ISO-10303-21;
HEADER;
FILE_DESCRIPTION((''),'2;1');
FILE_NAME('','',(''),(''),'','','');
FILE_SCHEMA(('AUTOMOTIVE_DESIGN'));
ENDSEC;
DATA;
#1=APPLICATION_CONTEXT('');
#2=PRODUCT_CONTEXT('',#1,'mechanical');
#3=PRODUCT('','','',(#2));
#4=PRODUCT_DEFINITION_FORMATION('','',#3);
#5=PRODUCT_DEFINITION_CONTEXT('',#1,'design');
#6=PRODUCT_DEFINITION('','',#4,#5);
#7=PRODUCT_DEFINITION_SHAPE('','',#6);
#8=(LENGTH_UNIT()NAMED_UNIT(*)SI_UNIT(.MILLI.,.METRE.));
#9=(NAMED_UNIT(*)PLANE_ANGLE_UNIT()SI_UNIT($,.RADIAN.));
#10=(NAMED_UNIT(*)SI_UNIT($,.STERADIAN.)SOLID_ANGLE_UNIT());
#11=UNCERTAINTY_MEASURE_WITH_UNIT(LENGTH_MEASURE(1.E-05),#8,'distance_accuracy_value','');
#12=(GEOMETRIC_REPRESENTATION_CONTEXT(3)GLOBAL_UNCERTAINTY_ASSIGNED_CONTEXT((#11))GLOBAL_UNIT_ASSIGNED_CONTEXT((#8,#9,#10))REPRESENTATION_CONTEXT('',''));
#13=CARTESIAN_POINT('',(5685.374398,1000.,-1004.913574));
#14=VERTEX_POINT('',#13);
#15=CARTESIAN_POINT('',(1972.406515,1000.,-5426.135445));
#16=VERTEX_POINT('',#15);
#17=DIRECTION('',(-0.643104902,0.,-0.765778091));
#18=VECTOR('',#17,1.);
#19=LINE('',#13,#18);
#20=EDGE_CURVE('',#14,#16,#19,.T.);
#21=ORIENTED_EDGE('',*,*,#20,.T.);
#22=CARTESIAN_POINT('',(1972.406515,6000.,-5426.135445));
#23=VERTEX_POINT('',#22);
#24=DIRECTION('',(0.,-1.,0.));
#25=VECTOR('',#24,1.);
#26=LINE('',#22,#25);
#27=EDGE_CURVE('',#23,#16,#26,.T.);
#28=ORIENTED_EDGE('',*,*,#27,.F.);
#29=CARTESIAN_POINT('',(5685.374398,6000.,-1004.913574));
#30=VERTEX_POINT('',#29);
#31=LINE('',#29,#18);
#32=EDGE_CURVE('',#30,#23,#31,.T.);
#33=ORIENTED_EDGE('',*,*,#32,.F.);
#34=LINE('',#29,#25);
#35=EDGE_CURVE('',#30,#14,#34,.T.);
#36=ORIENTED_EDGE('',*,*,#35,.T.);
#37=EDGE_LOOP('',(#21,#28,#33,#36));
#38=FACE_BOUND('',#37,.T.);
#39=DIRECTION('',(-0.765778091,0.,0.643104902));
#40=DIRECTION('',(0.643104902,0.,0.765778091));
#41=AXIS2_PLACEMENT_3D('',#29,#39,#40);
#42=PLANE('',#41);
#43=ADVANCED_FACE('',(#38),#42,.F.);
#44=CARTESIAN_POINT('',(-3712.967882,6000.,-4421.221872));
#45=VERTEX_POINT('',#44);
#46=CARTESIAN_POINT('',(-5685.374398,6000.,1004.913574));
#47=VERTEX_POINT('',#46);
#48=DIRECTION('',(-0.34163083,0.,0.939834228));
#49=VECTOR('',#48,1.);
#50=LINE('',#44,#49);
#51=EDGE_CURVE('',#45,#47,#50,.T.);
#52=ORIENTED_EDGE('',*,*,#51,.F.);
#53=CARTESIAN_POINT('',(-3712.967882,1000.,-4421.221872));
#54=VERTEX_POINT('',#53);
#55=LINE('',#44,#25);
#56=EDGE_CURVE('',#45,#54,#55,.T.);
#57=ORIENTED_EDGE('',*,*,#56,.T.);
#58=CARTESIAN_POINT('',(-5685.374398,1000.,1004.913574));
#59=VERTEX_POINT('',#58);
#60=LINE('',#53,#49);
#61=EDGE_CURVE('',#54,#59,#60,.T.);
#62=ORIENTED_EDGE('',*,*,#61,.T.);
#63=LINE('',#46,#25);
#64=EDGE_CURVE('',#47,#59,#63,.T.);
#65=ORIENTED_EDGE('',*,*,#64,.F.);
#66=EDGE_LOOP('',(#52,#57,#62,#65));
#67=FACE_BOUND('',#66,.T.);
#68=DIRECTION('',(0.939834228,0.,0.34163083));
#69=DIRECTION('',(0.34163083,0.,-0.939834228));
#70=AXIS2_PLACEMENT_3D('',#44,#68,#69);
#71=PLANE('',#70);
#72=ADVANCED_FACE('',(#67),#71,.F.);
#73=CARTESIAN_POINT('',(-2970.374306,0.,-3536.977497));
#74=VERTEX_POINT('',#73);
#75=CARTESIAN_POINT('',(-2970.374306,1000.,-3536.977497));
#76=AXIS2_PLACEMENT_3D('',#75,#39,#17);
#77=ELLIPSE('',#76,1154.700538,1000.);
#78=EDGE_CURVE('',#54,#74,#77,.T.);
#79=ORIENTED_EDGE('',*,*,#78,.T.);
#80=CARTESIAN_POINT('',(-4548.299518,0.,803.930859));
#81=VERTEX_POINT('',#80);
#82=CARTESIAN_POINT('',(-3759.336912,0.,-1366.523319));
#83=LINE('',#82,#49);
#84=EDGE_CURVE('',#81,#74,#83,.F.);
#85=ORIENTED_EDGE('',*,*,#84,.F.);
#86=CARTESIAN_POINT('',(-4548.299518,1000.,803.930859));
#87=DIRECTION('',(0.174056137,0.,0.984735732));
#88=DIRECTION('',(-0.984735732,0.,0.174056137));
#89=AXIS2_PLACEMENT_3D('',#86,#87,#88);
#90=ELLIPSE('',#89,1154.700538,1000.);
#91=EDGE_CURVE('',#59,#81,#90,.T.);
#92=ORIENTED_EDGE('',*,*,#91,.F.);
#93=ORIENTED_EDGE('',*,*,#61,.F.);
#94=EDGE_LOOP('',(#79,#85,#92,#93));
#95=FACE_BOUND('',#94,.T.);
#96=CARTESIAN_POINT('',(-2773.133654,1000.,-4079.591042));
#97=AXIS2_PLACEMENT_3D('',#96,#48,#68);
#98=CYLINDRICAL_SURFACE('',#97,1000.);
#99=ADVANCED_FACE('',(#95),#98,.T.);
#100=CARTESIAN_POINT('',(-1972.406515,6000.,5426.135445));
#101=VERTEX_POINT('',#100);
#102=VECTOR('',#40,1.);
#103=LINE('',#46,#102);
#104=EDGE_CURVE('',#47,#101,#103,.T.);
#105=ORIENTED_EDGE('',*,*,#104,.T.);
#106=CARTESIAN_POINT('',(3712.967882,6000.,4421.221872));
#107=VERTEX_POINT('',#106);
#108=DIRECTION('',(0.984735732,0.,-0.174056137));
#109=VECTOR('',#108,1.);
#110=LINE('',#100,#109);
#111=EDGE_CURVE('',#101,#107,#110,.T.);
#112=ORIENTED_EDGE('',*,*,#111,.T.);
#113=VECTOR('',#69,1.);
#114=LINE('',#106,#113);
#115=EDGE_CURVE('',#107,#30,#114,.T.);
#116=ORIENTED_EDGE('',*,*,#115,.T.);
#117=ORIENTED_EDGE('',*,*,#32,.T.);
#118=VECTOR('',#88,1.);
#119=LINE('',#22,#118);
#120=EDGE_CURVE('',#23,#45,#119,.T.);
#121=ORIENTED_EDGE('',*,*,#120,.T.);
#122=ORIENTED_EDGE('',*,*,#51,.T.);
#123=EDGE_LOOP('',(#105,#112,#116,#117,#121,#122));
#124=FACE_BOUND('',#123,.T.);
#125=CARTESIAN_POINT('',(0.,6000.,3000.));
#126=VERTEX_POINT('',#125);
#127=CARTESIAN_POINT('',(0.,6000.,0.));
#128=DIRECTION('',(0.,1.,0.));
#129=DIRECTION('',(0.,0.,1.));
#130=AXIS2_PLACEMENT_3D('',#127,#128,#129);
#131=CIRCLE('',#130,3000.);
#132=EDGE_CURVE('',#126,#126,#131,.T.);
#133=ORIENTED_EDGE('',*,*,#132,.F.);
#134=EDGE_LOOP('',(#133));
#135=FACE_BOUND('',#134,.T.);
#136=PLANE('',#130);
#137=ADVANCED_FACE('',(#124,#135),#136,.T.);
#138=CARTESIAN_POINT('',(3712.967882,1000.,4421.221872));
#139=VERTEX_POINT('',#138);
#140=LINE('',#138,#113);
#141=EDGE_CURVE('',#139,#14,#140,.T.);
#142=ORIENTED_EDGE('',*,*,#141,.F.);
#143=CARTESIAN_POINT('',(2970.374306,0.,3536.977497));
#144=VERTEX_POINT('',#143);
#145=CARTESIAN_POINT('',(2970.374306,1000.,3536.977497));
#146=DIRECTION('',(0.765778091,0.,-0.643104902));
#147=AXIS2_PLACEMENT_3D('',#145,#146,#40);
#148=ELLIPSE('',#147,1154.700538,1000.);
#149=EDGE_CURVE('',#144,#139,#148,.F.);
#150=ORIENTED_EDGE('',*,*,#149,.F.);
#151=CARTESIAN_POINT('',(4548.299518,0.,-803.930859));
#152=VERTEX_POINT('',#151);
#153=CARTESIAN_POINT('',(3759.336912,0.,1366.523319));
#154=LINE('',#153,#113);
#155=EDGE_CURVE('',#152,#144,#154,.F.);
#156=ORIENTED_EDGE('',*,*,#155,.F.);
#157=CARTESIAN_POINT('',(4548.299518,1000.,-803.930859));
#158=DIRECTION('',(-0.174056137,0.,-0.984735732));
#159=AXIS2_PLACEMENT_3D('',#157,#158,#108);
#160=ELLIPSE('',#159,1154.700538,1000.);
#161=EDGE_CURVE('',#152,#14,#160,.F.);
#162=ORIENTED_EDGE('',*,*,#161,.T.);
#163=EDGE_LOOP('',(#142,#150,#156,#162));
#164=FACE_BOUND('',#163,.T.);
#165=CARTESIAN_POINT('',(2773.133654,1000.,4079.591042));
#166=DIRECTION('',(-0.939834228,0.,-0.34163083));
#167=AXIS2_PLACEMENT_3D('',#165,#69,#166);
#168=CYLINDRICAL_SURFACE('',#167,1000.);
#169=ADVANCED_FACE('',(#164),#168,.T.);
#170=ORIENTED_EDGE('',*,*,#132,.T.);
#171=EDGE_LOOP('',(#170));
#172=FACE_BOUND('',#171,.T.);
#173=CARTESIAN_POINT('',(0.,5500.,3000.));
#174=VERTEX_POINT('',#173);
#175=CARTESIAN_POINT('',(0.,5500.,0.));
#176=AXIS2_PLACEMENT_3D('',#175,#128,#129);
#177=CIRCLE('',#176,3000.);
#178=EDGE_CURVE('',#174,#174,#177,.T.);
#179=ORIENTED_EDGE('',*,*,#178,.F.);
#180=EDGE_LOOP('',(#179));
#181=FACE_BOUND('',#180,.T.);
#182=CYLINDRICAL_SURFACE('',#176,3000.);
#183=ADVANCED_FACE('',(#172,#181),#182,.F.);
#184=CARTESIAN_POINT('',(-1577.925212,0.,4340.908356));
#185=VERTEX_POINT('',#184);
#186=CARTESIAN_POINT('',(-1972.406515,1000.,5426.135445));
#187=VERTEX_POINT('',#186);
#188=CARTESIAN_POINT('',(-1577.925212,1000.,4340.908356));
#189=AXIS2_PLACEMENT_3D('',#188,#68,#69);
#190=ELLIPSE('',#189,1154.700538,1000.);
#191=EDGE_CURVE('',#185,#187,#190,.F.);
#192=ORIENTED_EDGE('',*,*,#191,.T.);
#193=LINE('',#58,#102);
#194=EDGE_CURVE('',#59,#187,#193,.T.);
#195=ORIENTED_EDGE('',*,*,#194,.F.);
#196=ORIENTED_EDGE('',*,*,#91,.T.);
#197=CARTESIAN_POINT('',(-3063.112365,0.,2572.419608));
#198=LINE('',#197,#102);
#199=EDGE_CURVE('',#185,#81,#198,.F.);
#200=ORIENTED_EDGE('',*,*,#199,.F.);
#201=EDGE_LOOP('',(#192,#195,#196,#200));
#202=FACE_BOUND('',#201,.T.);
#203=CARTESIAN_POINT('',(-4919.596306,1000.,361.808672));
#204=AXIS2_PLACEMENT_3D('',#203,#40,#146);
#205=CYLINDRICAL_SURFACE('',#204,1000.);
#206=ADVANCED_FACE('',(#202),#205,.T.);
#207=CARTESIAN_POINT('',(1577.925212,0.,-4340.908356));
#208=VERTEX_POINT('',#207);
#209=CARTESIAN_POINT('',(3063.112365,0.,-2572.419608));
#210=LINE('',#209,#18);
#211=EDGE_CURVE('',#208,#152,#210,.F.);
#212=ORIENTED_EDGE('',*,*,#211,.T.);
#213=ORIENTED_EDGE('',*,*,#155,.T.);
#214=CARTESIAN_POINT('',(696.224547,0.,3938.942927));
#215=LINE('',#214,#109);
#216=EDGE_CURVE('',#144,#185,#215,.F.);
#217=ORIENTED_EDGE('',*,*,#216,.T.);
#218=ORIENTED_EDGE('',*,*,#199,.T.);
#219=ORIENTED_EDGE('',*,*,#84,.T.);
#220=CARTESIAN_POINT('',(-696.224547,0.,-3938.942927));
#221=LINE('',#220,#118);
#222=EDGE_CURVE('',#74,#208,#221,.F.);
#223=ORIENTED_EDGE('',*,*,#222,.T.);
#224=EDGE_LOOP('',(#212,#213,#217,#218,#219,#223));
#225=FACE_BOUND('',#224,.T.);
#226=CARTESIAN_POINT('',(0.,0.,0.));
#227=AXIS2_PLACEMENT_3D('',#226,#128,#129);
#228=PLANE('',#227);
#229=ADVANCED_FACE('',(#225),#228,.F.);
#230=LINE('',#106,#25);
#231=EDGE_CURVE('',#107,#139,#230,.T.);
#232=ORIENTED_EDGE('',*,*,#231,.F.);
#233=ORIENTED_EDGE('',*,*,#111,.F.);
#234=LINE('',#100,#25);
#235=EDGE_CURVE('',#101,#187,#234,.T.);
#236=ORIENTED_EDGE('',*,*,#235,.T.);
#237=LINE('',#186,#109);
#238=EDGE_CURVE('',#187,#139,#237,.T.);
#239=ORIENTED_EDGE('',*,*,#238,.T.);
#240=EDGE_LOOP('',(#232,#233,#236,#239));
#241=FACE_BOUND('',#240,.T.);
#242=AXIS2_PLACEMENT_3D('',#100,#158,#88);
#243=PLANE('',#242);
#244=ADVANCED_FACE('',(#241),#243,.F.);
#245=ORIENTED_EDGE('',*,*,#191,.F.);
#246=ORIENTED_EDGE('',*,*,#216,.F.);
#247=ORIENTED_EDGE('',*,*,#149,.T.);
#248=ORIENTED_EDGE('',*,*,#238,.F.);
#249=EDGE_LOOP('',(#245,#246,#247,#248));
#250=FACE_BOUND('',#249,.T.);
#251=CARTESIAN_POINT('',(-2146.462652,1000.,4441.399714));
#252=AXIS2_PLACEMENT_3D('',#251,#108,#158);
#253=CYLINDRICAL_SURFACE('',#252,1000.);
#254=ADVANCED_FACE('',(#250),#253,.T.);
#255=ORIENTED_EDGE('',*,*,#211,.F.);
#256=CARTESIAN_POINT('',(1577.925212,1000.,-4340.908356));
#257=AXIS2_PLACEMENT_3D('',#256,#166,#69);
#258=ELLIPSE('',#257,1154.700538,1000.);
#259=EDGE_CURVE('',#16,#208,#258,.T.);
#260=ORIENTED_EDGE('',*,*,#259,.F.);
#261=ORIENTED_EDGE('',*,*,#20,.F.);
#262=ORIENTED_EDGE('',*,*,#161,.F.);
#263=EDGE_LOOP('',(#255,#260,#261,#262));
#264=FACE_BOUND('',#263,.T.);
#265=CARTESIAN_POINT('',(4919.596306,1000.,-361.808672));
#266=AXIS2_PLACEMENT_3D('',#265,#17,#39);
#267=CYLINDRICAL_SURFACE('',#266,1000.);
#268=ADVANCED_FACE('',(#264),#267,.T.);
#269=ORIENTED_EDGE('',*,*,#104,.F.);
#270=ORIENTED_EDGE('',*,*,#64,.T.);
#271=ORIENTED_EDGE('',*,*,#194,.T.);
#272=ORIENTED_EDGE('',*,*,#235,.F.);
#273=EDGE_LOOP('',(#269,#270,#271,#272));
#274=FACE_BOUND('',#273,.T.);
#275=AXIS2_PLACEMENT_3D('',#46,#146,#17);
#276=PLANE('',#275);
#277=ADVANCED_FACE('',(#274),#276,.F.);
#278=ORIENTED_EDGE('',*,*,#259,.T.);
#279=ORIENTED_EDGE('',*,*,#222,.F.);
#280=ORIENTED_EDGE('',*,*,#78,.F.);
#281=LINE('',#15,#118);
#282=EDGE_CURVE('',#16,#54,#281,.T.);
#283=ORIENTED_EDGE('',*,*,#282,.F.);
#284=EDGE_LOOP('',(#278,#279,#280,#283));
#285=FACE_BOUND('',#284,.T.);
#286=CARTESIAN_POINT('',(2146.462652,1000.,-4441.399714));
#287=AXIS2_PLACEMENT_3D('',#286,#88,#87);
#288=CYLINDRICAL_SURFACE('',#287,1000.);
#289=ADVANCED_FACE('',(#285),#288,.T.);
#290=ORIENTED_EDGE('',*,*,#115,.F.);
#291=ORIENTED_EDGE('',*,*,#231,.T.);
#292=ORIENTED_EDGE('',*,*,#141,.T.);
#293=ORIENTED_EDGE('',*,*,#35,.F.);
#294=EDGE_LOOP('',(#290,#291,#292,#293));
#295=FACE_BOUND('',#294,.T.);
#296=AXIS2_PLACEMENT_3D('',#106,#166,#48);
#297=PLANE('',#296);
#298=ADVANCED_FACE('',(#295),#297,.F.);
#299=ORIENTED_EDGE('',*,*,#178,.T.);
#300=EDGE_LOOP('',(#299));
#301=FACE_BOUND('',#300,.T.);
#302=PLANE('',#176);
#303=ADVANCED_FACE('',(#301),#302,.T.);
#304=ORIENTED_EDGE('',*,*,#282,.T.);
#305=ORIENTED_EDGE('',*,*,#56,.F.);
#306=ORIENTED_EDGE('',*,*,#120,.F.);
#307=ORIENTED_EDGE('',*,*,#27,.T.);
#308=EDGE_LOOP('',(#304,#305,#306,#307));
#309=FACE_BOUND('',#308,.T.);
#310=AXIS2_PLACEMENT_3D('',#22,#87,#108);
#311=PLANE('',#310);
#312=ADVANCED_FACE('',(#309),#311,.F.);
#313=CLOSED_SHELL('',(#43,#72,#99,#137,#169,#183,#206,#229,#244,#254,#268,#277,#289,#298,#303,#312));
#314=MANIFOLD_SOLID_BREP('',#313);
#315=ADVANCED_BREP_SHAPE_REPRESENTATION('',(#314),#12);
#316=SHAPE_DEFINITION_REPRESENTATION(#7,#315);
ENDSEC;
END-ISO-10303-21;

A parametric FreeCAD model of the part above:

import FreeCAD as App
import Part
import Sketcher
from FreeCAD import Vector


def edges_at(feature, points):
    """Names of the edges that pass closest to the given points."""
    edges = feature.Shape.Edges
    near = lambda p: min(range(len(edges)), key=lambda i: edges[i].distToShape(Part.Vertex(*p))[0])
    return sorted({f"Edge{near(p) + 1}" for p in points})


def add_polygon(sketch, points):
    """Adds a closed chain of lines whose ends are joined by coincident constraints."""
    first, n = sketch.GeometryCount, len(points)
    for a, b in zip(points, points[1:] + points[:1]):
        sketch.addGeometry(Part.LineSegment(App.Vector(*a, 0), App.Vector(*b, 0)), False)
    for i in range(n):
        sketch.addConstraint(Sketcher.Constraint("Coincident", first + i, 2, first + (i + 1) % n, 1))

doc = App.newDocument("Part")
params = doc.addObject("Spreadsheet::Sheet", "Params")
for row, (alias, value) in enumerate([
    ("pad1_length", "6000 mm"),
    ("fillet_radius", "1000 mm"),
    ("sketch2_diameter", "6000 mm"),
    ("pocket1_length", "500 mm"),
], start=1):
    params.set(f"A{row}", alias)
    params.set(f"B{row}", "=" + value)
    params.setAlias(f"B{row}", alias)

body = doc.addObject("PartDesign::Body", "Body")

sketch1 = body.newObject("Sketcher::SketchObject", "Sketch")
sketch1.AttachmentSupport = (doc.getObject("XZ_Plane"), [""])
sketch1.MapMode = "FlatFace"
add_polygon(sketch1, [(3713, 4421), (5685, -1005), (1972, -5426), (-3713, -4421), (-5685, 1005), (-1972, 5426)])
sketch1.addConstraint(Sketcher.Constraint("Symmetric", 0, 2, 3, 2, -1, 1))
sketch1.addConstraint(Sketcher.Constraint("Symmetric", 1, 2, 4, 2, -1, 1))
sketch1.addConstraint(Sketcher.Constraint("Symmetric", 2, 2, 5, 2, -1, 1))
sketch1.addConstraint(Sketcher.Constraint("Equal", 0, 1))
sketch1.addConstraint(Sketcher.Constraint("Equal", 1, 2))
sketch1.addConstraint(Sketcher.Constraint("Distance", 0, 5773.502692))
sketch1.addConstraint(Sketcher.Constraint("DistanceY", 2, 2, -1, 1, 4421.221872))
sketch1.addConstraint(Sketcher.Constraint("DistanceY", 1, 2, 0, 2, 4421.221872))
sketch1.addConstraint(Sketcher.Constraint("DistanceX", 2, 2, 0, 2, 9398.34228))
pad1 = body.newObject("PartDesign::Pad", "Pad")
pad1.Profile = sketch1
pad1.setExpression("Length", "Params.pad1_length")
pad1.Reversed = True
doc.recompute()

fillet = body.newObject("PartDesign::Fillet", "Fillet")
fillet.Base = (pad1, edges_at(pad1, [
    (-3828.89, 0, 3215.525),
    (-4699.171, 0, -1708.154),
    (-870.281, 0, -4923.679),
    (3828.89, 0, -3215.525),
    (4699.171, 0, 1708.154),
    (870.281, 0, 4923.679),
]))
fillet.setExpression("Radius", "Params.fillet_radius")

sketch2 = body.newObject("Sketcher::SketchObject", "Sketch001")
sketch2.AttachmentSupport = (doc.getObject("XZ_Plane"), [""])
sketch2.MapMode = "FlatFace"
sketch2.AttachmentOffset = App.Placement(Vector(0, 0, -6000), App.Rotation())
sketch2.addGeometry(Part.Circle(Vector(0, 0, 0), Vector(0, 0, 1), 3000), False)
sketch2.addConstraint(Sketcher.Constraint("Coincident", 0, 3, -1, 1))
sketch2.addConstraint(Sketcher.Constraint("Diameter", 0, 6000.0))
sketch2.setExpression("Constraints[1]", "Params.sketch2_diameter")
pocket1 = body.newObject("PartDesign::Pocket", "Pocket")
pocket1.Profile = sketch2
pocket1.setExpression("Length", "Params.pocket1_length")
pocket1.Reversed = True

doc.recompute()
